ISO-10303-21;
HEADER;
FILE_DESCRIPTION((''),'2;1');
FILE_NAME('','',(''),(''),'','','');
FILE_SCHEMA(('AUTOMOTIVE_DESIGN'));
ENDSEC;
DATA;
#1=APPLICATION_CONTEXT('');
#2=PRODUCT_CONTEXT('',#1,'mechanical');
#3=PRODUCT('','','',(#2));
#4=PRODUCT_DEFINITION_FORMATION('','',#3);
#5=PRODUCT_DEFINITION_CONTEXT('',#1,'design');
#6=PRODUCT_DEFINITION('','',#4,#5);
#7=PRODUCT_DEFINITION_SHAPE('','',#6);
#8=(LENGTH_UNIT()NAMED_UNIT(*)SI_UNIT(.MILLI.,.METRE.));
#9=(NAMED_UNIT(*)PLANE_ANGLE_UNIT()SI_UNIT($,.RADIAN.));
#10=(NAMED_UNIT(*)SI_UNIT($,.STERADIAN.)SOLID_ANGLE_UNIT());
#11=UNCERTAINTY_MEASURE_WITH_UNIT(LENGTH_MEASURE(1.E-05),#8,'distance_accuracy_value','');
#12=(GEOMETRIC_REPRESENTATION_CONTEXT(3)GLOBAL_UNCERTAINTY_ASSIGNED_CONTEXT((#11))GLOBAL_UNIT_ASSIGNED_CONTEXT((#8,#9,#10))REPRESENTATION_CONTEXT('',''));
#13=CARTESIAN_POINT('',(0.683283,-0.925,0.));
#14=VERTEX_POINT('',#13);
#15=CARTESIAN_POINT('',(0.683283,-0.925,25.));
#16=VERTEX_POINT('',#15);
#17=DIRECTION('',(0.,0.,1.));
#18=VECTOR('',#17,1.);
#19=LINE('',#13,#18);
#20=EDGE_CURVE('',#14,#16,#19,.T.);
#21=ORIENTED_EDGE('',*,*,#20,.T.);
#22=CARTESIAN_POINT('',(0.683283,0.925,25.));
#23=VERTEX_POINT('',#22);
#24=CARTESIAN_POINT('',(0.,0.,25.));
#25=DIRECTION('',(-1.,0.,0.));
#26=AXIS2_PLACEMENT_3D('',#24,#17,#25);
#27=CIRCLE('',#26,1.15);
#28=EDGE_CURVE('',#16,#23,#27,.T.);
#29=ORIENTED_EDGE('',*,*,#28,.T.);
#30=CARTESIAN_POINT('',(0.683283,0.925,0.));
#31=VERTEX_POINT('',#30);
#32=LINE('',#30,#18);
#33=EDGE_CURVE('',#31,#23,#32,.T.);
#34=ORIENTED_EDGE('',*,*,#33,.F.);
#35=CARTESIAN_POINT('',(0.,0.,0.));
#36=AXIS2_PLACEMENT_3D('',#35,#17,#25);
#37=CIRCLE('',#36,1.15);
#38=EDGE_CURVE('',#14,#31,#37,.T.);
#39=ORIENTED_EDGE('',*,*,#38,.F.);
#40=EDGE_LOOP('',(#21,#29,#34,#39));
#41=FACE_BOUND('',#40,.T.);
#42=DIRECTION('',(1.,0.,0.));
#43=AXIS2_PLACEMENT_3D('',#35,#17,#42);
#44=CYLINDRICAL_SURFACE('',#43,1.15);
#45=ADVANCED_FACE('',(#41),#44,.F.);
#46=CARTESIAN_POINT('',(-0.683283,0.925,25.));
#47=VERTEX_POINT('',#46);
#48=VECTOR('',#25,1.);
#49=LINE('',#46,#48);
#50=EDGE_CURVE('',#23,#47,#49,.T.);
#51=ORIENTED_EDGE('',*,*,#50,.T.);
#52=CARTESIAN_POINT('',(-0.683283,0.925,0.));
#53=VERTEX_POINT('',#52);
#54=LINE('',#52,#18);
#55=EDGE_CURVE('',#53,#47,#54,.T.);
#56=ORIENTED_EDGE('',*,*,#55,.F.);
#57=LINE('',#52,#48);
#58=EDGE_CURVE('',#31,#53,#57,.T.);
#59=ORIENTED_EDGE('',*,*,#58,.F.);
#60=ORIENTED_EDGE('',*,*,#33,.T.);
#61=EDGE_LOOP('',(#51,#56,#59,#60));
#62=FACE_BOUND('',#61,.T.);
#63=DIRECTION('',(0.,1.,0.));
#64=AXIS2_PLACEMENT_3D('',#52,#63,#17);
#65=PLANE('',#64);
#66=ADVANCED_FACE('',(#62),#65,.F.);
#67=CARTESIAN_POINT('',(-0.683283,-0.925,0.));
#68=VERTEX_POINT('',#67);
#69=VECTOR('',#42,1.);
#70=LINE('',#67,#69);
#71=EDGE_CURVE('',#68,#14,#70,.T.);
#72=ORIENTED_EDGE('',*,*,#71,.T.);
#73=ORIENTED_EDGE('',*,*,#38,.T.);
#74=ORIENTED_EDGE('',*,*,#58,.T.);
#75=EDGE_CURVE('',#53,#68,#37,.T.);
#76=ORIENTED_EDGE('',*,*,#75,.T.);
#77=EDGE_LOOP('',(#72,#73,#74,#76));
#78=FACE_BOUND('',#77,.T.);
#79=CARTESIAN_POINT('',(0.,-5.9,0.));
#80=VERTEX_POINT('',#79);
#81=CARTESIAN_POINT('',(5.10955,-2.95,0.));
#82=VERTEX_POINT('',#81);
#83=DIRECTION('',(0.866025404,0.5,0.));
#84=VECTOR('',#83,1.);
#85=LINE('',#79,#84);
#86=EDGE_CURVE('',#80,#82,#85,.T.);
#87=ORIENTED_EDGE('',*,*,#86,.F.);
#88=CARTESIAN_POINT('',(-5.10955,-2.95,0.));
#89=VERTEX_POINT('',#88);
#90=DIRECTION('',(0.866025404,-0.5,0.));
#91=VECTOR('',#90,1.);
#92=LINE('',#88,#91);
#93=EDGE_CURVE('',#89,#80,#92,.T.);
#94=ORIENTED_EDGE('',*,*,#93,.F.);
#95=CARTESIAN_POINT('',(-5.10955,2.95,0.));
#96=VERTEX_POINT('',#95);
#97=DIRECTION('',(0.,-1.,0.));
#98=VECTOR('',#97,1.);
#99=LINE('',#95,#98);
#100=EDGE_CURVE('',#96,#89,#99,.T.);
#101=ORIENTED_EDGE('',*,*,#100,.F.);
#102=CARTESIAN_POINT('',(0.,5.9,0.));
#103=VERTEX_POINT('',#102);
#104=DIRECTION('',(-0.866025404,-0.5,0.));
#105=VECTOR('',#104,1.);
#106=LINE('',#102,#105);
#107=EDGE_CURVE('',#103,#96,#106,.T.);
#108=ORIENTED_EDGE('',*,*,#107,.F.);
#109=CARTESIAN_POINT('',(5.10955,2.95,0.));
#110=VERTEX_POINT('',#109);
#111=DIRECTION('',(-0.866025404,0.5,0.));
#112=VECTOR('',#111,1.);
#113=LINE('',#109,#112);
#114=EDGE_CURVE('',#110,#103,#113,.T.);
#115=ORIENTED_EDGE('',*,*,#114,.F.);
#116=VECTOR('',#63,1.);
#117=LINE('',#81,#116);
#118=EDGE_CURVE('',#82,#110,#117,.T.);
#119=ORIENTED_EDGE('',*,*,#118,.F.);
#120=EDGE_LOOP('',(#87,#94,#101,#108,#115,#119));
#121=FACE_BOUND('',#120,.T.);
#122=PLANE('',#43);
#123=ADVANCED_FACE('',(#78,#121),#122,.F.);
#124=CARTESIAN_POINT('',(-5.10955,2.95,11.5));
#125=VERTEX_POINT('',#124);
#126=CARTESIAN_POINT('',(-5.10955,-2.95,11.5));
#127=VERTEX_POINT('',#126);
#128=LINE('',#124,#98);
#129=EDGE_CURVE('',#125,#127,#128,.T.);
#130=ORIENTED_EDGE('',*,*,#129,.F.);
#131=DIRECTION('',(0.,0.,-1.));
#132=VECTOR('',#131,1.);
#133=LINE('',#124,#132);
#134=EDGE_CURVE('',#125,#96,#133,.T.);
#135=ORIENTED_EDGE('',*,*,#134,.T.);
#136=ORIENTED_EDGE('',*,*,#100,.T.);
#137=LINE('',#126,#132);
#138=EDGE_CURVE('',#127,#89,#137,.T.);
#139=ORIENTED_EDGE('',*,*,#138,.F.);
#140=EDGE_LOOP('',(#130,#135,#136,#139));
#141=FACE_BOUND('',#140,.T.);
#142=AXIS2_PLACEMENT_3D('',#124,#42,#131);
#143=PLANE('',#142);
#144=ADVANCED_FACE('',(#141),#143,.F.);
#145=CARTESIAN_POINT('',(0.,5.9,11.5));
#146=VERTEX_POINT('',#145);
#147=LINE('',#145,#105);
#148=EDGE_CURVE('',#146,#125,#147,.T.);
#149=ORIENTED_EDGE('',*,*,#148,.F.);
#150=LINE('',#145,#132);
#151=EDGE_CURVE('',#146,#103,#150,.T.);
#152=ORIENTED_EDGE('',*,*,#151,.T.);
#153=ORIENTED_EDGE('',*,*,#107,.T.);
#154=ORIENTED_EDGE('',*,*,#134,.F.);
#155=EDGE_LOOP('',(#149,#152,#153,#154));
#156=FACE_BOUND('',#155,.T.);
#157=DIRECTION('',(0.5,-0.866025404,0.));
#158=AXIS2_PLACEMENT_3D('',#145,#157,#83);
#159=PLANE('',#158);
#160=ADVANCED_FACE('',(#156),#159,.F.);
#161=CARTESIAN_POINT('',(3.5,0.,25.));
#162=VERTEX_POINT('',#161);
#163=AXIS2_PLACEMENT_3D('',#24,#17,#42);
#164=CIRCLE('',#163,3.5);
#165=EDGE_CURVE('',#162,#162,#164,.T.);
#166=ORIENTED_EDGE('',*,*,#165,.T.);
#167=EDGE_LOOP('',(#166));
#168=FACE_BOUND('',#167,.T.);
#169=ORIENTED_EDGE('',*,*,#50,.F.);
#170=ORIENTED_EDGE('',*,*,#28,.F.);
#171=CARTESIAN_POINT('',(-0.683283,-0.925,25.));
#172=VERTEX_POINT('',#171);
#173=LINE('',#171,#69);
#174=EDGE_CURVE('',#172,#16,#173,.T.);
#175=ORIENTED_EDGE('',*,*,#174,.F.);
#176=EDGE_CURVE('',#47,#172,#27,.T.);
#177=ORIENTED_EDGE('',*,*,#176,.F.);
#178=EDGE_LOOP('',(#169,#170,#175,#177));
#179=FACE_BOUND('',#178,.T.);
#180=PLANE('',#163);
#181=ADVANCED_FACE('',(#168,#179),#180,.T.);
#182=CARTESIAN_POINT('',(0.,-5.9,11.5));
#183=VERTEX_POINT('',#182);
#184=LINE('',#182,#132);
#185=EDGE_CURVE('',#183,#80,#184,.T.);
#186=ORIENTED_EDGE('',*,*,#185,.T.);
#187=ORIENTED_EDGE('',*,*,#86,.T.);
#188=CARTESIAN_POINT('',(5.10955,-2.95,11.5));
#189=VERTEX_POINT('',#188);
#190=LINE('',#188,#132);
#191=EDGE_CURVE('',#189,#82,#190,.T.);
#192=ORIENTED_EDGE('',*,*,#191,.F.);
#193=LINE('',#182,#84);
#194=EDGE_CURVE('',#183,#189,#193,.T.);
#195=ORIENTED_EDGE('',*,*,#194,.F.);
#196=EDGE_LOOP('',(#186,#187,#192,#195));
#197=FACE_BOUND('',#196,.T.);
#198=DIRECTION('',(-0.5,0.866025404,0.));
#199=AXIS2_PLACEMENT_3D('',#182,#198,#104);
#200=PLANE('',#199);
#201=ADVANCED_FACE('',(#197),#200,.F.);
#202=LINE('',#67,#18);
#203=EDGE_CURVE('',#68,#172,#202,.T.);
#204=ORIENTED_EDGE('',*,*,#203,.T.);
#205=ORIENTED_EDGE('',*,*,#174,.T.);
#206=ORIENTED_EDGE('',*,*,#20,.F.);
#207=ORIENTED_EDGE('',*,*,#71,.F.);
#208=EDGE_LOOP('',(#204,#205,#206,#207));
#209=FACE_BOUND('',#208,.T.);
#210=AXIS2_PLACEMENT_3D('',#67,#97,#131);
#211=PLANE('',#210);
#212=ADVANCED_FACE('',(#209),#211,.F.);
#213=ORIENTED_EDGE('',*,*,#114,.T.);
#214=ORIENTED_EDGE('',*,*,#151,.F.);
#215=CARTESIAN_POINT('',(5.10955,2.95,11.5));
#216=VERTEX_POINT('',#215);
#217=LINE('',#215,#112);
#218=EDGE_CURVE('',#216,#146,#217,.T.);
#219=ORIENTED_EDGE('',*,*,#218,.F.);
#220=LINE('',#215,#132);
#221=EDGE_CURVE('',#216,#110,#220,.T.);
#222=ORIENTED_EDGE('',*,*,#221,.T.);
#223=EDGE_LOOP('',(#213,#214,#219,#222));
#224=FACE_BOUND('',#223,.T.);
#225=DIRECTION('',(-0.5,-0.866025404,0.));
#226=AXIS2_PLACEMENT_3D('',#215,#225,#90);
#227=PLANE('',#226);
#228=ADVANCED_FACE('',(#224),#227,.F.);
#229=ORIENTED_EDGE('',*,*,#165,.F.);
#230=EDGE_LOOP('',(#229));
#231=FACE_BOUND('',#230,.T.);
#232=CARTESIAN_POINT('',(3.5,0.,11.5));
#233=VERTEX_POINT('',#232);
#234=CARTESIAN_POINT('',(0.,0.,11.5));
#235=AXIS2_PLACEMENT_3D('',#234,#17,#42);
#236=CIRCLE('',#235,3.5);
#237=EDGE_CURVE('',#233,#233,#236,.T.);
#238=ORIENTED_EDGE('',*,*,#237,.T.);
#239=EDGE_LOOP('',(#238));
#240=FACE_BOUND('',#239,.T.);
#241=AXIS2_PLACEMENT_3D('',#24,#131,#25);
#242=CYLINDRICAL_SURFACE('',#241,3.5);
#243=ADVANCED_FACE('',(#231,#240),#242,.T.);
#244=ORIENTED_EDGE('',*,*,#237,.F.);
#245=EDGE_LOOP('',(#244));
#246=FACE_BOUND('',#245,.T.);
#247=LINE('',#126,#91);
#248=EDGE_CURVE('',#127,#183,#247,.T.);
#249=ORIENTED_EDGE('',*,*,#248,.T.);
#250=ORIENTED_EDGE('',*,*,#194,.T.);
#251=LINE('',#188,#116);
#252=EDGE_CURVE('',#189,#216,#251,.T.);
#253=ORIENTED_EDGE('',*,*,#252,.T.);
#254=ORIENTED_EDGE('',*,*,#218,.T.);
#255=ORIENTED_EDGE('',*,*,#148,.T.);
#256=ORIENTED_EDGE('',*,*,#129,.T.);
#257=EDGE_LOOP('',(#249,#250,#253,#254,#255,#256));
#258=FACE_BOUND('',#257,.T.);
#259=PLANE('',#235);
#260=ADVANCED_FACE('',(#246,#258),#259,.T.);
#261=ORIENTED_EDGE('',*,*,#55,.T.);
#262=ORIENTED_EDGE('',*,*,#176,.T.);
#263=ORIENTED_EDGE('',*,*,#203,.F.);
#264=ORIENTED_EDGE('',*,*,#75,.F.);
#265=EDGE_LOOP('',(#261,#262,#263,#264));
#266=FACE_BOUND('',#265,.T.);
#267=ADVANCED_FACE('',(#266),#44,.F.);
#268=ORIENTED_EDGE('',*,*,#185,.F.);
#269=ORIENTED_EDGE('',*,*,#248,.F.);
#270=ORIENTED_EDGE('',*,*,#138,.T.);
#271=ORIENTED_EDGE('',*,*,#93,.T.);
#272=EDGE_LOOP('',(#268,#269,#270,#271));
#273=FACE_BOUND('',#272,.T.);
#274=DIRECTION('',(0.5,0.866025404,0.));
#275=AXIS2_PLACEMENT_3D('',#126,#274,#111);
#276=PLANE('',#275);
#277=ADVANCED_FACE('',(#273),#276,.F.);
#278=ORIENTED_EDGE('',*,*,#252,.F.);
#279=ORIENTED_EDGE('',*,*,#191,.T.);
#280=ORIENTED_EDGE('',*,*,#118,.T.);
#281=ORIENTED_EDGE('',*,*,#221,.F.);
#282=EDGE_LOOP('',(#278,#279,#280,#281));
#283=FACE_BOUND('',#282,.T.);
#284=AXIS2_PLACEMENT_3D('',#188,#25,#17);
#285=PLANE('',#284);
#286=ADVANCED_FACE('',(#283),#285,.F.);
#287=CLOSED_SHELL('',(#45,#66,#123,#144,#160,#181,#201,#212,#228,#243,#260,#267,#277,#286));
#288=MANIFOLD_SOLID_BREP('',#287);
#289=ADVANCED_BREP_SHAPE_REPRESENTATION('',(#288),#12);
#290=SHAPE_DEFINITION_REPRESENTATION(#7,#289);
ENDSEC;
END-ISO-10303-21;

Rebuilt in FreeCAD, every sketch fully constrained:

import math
import FreeCAD as App
import Part
import Sketcher
Q = App.Units.Quantity

doc = App.newDocument("Part")
body = doc.addObject("PartDesign::Body", "Body")

# Sketch on XY plane
sketch1 = body.newObject("Sketcher::SketchObject", "Sketch")
sketch1.AttachmentSupport = (doc.getObject("XY_Plane"), [""])
sketch1.MapMode = "FlatFace"
sketch1.addGeometry([
    Part.LineSegment(App.Vector(5, -3, 0), App.Vector(5, 3, 0)),  # 0
    Part.LineSegment(App.Vector(5, 3, 0), App.Vector(0, 6, 0)),  # 1
    Part.LineSegment(App.Vector(0, 6, 0), App.Vector(-5, 3, 0)),  # 2
    Part.LineSegment(App.Vector(-5, 3, 0), App.Vector(-5, -3, 0)),  # 3
    Part.LineSegment(App.Vector(-5, -3, 0), App.Vector(0, -6, 0)),  # 4
    Part.LineSegment(App.Vector(0, -6, 0), App.Vector(5, -3, 0)),  # 5
], False)
sketch1.addConstraint([
    Sketcher.Constraint("Coincident", 0, 2, 1, 1),
    Sketcher.Constraint("Coincident", 1, 2, 2, 1),
    Sketcher.Constraint("Coincident", 2, 2, 3, 1),
    Sketcher.Constraint("Coincident", 3, 2, 4, 1),
    Sketcher.Constraint("Coincident", 4, 2, 5, 1),
    Sketcher.Constraint("Coincident", 5, 2, 0, 1),
    Sketcher.Constraint("Vertical", 0),
    Sketcher.Constraint("Vertical", 3),
    Sketcher.Constraint("Symmetric", 0, 2, 3, 2, -1, 1),
    Sketcher.Constraint("Symmetric", 1, 2, 4, 2, -1, 1),
    Sketcher.Constraint("PointOnObject", 1, 2, -2),
    Sketcher.Constraint("Parallel", 2, 5),
    Sketcher.Constraint("Horizontal", 0, 2, 2, 2),
    Sketcher.Constraint("Angle", 1, Q("150 deg")),
    Sketcher.Constraint("DistanceY", 0, 1, 0, 2, Q("5.9 mm")),
    Sketcher.Constraint("Distance", 1, Q("5.9 mm")),
])
pad1 = body.newObject("PartDesign::Pad", "Pad")
pad1.Profile = sketch1
pad1.Length = 11.5

# Sketch on XY plane
sketch2 = body.newObject("Sketcher::SketchObject", "Sketch001")
sketch2.AttachmentSupport = (doc.getObject("XY_Plane"), [""])
sketch2.MapMode = "FlatFace"
sketch2.AttachmentOffset = App.Placement(App.Vector(0, 0, 11.5), App.Rotation())
sketch2.addGeometry(Part.Circle(App.Vector(0, 0, 0), App.Vector(0, 0, 1), 3.5), False)
sketch2.addConstraint([
    Sketcher.Constraint("Coincident", 0, 3, -1, 1),
    Sketcher.Constraint("Diameter", 0, Q("7 mm")),
])
pad2 = body.newObject("PartDesign::Pad", "Pad001")
pad2.Profile = sketch2
pad2.Length = 13.5

# Sketch on XY plane
sketch3 = body.newObject("Sketcher::SketchObject", "Sketch002")
sketch3.AttachmentSupport = (doc.getObject("XY_Plane"), [""])
sketch3.MapMode = "FlatFace"
sketch3.AttachmentOffset = App.Placement(App.Vector(0, 0, 25), App.Rotation())
sketch3.addGeometry([
    Part.LineSegment(App.Vector(0.7, 0.9, 0), App.Vector(-0.7, 0.9, 0)),
    Part.ArcOfCircle(Part.Circle(App.Vector(0, 0, 0), App.Vector(0, 0, 1), 1.1), math.radians(126), math.radians(234)),
    Part.LineSegment(App.Vector(-0.7, -0.9, 0), App.Vector(0.7, -0.9, 0)),
    Part.ArcOfCircle(Part.Circle(App.Vector(0, 0, 0), App.Vector(0, 0, 1), 1.1), math.radians(-54), math.radians(54)),
], False)
sketch3.addConstraint([
    Sketcher.Constraint("Coincident", 0, 2, 1, 1),
    Sketcher.Constraint("Coincident", 1, 2, 2, 1),
    Sketcher.Constraint("Coincident", 2, 2, 3, 1),
    Sketcher.Constraint("Coincident", 3, 2, 0, 1),
    Sketcher.Constraint("Horizontal", 0),
    Sketcher.Constraint("Horizontal", 2),
    Sketcher.Constraint("Coincident", 1, 3, -1, 1),
    Sketcher.Constraint("Coincident", 3, 3, -1, 1),
    Sketcher.Constraint("Equal", 1, 3),
    Sketcher.Constraint("Vertical", 0, 2, 1, 2),
    Sketcher.Constraint("Radius", 1, Q("1.15 mm")),
    Sketcher.Constraint("DistanceY", 1, 2, 0, 2, Q("1.85 mm")),
])
pocket1 = body.newObject("PartDesign::Pocket", "Pocket")
pocket1.Profile = sketch3
pocket1.Type = "ThroughAll"

doc.recompute()
